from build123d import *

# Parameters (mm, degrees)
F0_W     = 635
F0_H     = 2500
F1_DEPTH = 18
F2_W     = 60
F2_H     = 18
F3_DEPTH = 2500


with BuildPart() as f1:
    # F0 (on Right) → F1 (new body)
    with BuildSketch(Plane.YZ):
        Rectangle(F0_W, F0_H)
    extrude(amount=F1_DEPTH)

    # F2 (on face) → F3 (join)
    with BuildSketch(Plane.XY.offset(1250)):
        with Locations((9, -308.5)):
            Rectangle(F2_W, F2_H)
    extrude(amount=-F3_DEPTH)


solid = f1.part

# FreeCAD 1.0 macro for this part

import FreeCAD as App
import Part
import Sketcher
Q = App.Units.Quantity

doc = App.newDocument("Part")
params = doc.addObject("Spreadsheet::Sheet", "Params")
for row, (alias, value) in enumerate([
    ("sketch1_width", "635 mm"),
    ("sketch1_height", "2500 mm"),
    ("pad1_length", "18 mm"),
    ("sketch2_width", "60 mm"),
    ("sketch2_height", "18 mm"),
    ("pad2_length", "2500 mm"),
], start=1):
    params.set(f"A{row}", alias)
    params.set(f"B{row}", "=" + value)
    params.setAlias(f"B{row}", alias)

body = doc.addObject("PartDesign::Body", "Body")

# Sketch on YZ plane
sketch1 = body.newObject("Sketcher::SketchObject", "Sketch")
sketch1.AttachmentSupport = (doc.getObject("YZ_Plane"), [""])
sketch1.MapMode = "FlatFace"
sketch1.addGeometry([
    Part.LineSegment(App.Vector(-317.5, 1250, 0), App.Vector(-317.5, -1250, 0)),
    Part.LineSegment(App.Vector(-317.5, -1250, 0), App.Vector(317.5, -1250, 0)),
    Part.LineSegment(App.Vector(317.5, -1250, 0), App.Vector(317.5, 1250, 0)),
    Part.LineSegment(App.Vector(317.5, 1250, 0), App.Vector(-317.5, 1250, 0)),
], False)
sketch1.addConstraint([
    Sketcher.Constraint("Coincident", 0, 2, 1, 1),
    Sketcher.Constraint("Coincident", 1, 2, 2, 1),
    Sketcher.Constraint("Coincident", 2, 2, 3, 1),
    Sketcher.Constraint("Coincident", 3, 2, 0, 1),
    Sketcher.Constraint("Vertical", 0),
    Sketcher.Constraint("Horizontal", 1),
    Sketcher.Constraint("Vertical", 2),
    Sketcher.Constraint("Horizontal", 3),
    Sketcher.Constraint("Symmetric", 0, 2, 2, 2, -1, 1),
    Sketcher.Constraint("DistanceX", 1, 1, 1, 2, Q("635 mm")),
    Sketcher.Constraint("DistanceY", 0, 2, 0, 1, Q("2500 mm")),
])
sketch1.setExpression("Constraints[9]", "Params.sketch1_width")
sketch1.setExpression("Constraints[10]", "Params.sketch1_height")
pad1 = body.newObject("PartDesign::Pad", "Pad")
pad1.Profile = sketch1
pad1.setExpression("Length", "Params.pad1_length")

# Sketch on XY plane
sketch2 = body.newObject("Sketcher::SketchObject", "Sketch001")
sketch2.AttachmentSupport = (doc.getObject("XY_Plane"), [""])
sketch2.MapMode = "FlatFace"
sketch2.AttachmentOffset = App.Placement(App.Vector(0, 0, 1250), App.Rotation())
sketch2.addGeometry([
    Part.LineSegment(App.Vector(-21, -299.5, 0), App.Vector(-21, -317.5, 0)),
    Part.LineSegment(App.Vector(-21, -317.5, 0), App.Vector(39, -317.5, 0)),
    Part.LineSegment(App.Vector(39, -317.5, 0), App.Vector(39, -299.5, 0)),
    Part.LineSegment(App.Vector(39, -299.5, 0), App.Vector(-21, -299.5, 0)),
], False)
sketch2.addConstraint([
    Sketcher.Constraint("Coincident", 0, 2, 1, 1),
    Sketcher.Constraint("Coincident", 1, 2, 2, 1),
    Sketcher.Constraint("Coincident", 2, 2, 3, 1),
    Sketcher.Constraint("Coincident", 3, 2, 0, 1),
    Sketcher.Constraint("Vertical", 0),
    Sketcher.Constraint("Horizontal", 1),
    Sketcher.Constraint("Vertical", 2),
    Sketcher.Constraint("Horizontal", 3),
    Sketcher.Constraint("DistanceX", 1, 1, 1, 2, Q("60 mm")),
    Sketcher.Constraint("DistanceY", 0, 2, 0, 1, Q("18 mm")),
    Sketcher.Constraint("DistanceX", 0, 2, -1, 1, Q("21 mm")),
    Sketcher.Constraint("DistanceY", 0, 2, -1, 1, Q("317.5 mm")),
])
sketch2.setExpression("Constraints[8]", "Params.sketch2_width")
sketch2.setExpression("Constraints[9]", "Params.sketch2_height")
pad2 = body.newObject("PartDesign::Pad", "Pad001")
pad2.Profile = sketch2
pad2.setExpression("Length", "Params.pad2_length")
pad2.Reversed = True

doc.recompute()
